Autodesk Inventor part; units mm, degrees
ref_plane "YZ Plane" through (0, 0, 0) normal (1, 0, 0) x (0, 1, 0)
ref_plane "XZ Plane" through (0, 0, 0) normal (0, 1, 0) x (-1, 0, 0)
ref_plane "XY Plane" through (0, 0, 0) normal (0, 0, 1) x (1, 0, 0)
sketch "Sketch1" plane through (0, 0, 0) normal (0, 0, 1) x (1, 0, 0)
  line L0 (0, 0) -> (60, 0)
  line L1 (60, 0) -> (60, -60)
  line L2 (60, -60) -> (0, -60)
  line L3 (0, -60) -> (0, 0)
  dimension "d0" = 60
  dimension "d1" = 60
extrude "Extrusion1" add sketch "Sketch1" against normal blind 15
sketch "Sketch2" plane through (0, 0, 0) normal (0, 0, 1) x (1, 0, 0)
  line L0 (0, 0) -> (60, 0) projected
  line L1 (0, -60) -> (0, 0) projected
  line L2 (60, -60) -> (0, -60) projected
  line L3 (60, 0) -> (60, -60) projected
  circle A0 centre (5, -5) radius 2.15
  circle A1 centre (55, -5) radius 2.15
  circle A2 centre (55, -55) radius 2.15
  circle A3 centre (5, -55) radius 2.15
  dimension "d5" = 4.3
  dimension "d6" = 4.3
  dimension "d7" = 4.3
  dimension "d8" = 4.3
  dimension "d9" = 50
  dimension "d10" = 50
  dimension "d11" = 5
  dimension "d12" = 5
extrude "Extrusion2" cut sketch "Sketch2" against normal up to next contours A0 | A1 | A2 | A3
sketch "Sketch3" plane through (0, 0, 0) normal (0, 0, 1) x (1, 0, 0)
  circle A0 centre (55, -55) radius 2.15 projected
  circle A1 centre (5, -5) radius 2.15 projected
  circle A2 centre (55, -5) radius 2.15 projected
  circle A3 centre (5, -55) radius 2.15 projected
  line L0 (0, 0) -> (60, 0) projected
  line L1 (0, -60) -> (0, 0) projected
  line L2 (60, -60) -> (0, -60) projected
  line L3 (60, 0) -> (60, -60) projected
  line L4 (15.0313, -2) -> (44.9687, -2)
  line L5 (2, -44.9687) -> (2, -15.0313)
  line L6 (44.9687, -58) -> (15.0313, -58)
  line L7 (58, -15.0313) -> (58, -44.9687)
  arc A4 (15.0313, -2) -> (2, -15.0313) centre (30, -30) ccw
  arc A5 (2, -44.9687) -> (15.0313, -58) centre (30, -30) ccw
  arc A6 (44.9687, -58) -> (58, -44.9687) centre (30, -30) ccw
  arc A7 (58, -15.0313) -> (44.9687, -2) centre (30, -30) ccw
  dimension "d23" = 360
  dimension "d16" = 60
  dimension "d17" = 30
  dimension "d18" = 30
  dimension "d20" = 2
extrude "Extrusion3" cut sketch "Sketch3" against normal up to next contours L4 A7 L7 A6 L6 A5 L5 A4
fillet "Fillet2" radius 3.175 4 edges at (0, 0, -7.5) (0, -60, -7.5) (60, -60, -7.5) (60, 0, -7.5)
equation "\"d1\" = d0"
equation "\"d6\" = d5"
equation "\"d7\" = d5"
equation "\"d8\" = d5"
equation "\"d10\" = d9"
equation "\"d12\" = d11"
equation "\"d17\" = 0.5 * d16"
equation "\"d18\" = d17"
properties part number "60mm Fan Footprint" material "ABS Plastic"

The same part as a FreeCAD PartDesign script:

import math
import FreeCAD as App
import Part
import Sketcher
from FreeCAD import Vector
Q = App.Units.Quantity


def edges_at(feature, points):
    """Names of the edges that pass closest to the given points."""
    edges = feature.Shape.Edges
    near = lambda p: min(range(len(edges)), key=lambda i: edges[i].distToShape(Part.Vertex(*p))[0])
    return sorted({f"Edge{near(p) + 1}" for p in points})


def add_polygon(sketch, points):
    """Adds a closed chain of lines whose ends are joined by coincident constraints."""
    first, n = sketch.GeometryCount, len(points)
    for a, b in zip(points, points[1:] + points[:1]):
        sketch.addGeometry(Part.LineSegment(App.Vector(*a, 0), App.Vector(*b, 0)), False)
    for i in range(n):
        sketch.addConstraint(Sketcher.Constraint("Coincident", first + i, 2, first + (i + 1) % n, 1))

doc = App.newDocument("Part")
body = doc.addObject("PartDesign::Body", "Body")

sketch1 = body.newObject("Sketcher::SketchObject", "Sketch")
sketch1.AttachmentSupport = (doc.getObject("XY_Plane"), [""])
sketch1.MapMode = "FlatFace"
add_polygon(sketch1, [(60, 0), (0, 0), (0, -60), (60, -60)])
sketch1.addConstraint([
    Sketcher.Constraint("Horizontal", 0),
    Sketcher.Constraint("Vertical", 1),
    Sketcher.Constraint("Horizontal", 2),
    Sketcher.Constraint("Vertical", 3),
    Sketcher.Constraint("Coincident", 0, 2, -1, 1),
    Sketcher.Constraint("Equal", 2, 1),
    Sketcher.Constraint("DistanceX", 0, 2, 0, 1, Q("2.3622 in")),
])
pad1 = body.newObject("PartDesign::Pad", "Pad")
pad1.Profile = sketch1
pad1.Length = 15
pad1.Reversed = True

sketch2 = body.newObject("Sketcher::SketchObject", "Sketch001")
sketch2.AttachmentSupport = (doc.getObject("XY_Plane"), [""])
sketch2.MapMode = "FlatFace"
sketch2.addGeometry([
    Part.Circle(Vector(5, -5, 0), Vector(0, 0, 1), 2.1),
    Part.Circle(Vector(55, -5, 0), Vector(0, 0, 1), 2.1),
    Part.Circle(Vector(55, -55, 0), Vector(0, 0, 1), 2.1),
    Part.Circle(Vector(5, -55, 0), Vector(0, 0, 1), 2.1),
], False)
sketch2.addConstraint([
    Sketcher.Constraint("Equal", 0, 1),
    Sketcher.Constraint("Equal", 1, 2),
    Sketcher.Constraint("Equal", 2, 3),
    Sketcher.Constraint("Horizontal", 0, 3, 1, 3),
    Sketcher.Constraint("Horizontal", 2, 3, 3, 3),
    Sketcher.Constraint("Vertical", 1, 3, 2, 3),
    Sketcher.Constraint("Vertical", 0, 3, 3, 3),
    Sketcher.Constraint("Diameter", 0, Q("0.1693 in")),
    Sketcher.Constraint("DistanceX", 0, 3, 1, 3, Q("1.9685 in")),
    Sketcher.Constraint("DistanceY", 2, 3, 1, 3, Q("1.9685 in")),
    Sketcher.Constraint("DistanceX", -1, 1, 0, 3, Q("5 mm")),
    Sketcher.Constraint("DistanceY", 0, 3, -1, 1, Q("5 mm")),
])
pocket1 = body.newObject("PartDesign::Pocket", "Pocket")
pocket1.Profile = sketch2
pocket1.Type = "UpToFirst"

sketch3 = body.newObject("Sketcher::SketchObject", "Sketch002")
sketch3.AttachmentSupport = (doc.getObject("XY_Plane"), [""])
sketch3.MapMode = "FlatFace"
sketch3.addGeometry([
    Part.LineSegment(Vector(45, -2, 0), Vector(15, -2, 0)),
    Part.ArcOfCircle(Part.Circle(Vector(30, -30, 0), Vector(0, 0, 1), 32), math.radians(118), math.radians(152)),
    Part.LineSegment(Vector(2, -15, 0), Vector(2, -45, 0)),
    Part.ArcOfCircle(Part.Circle(Vector(30, -30, 0), Vector(0, 0, 1), 32), math.radians(-152), math.radians(-118)),
    Part.LineSegment(Vector(15, -58, 0), Vector(45, -58, 0)),
    Part.ArcOfCircle(Part.Circle(Vector(30, -30, 0), Vector(0, 0, 1), 32), math.radians(-62), math.radians(-28)),
    Part.LineSegment(Vector(58, -45, 0), Vector(58, -15, 0)),
    Part.ArcOfCircle(Part.Circle(Vector(30, -30, 0), Vector(0, 0, 1), 32), math.radians(28), math.radians(62)),
], False)
sketch3.addConstraint([
    Sketcher.Constraint("Coincident", 0, 2, 1, 1),
    Sketcher.Constraint("Coincident", 1, 2, 2, 1),
    Sketcher.Constraint("Coincident", 2, 2, 3, 1),
    Sketcher.Constraint("Coincident", 3, 2, 4, 1),
    Sketcher.Constraint("Coincident", 4, 2, 5, 1),
    Sketcher.Constraint("Coincident", 5, 2, 6, 1),
    Sketcher.Constraint("Coincident", 6, 2, 7, 1),
    Sketcher.Constraint("Coincident", 7, 2, 0, 1),
    Sketcher.Constraint("Horizontal", 0),
    Sketcher.Constraint("Vertical", 2),
    Sketcher.Constraint("Horizontal", 4),
    Sketcher.Constraint("Vertical", 6),
    Sketcher.Constraint("Coincident", 3, 3, 1, 3),
    Sketcher.Constraint("Coincident", 5, 3, 1, 3),
    Sketcher.Constraint("Coincident", 7, 3, 1, 3),
    Sketcher.Constraint("Equal", 1, 3),
    Sketcher.Constraint("Equal", 3, 5),
    Sketcher.Constraint("Equal", 5, 7),
    Sketcher.Constraint("Horizontal", 2, 2, 5, 2),
    Sketcher.Constraint("Vertical", 0, 2, 3, 2),
    Sketcher.Constraint("Equal", 4, 2),
    Sketcher.Constraint("Radius", 1, Q("1.25 in")),
    Sketcher.Constraint("DistanceX", -1, 1, 1, 3, Q("1.1811 in")),
    Sketcher.Constraint("DistanceY", 1, 3, -1, 1, Q("1.1811 in")),
    Sketcher.Constraint("DistanceY", 0, 2, -1, 1, Q("2 mm")),
])
pocket2 = body.newObject("PartDesign::Pocket", "Pocket001")
pocket2.Profile = sketch3
pocket2.Type = "UpToFirst"
doc.recompute()

fillet = body.newObject("PartDesign::Fillet", "Fillet")
fillet.Base = (pocket2, edges_at(pocket2, [
    (0, 0, -7.5),
    (0, -60, -7.5),
    (60, -60, -7.5),
    (60, 0, -7.5),
]))
fillet.Radius = Q("0.125 in")

doc.recompute()
